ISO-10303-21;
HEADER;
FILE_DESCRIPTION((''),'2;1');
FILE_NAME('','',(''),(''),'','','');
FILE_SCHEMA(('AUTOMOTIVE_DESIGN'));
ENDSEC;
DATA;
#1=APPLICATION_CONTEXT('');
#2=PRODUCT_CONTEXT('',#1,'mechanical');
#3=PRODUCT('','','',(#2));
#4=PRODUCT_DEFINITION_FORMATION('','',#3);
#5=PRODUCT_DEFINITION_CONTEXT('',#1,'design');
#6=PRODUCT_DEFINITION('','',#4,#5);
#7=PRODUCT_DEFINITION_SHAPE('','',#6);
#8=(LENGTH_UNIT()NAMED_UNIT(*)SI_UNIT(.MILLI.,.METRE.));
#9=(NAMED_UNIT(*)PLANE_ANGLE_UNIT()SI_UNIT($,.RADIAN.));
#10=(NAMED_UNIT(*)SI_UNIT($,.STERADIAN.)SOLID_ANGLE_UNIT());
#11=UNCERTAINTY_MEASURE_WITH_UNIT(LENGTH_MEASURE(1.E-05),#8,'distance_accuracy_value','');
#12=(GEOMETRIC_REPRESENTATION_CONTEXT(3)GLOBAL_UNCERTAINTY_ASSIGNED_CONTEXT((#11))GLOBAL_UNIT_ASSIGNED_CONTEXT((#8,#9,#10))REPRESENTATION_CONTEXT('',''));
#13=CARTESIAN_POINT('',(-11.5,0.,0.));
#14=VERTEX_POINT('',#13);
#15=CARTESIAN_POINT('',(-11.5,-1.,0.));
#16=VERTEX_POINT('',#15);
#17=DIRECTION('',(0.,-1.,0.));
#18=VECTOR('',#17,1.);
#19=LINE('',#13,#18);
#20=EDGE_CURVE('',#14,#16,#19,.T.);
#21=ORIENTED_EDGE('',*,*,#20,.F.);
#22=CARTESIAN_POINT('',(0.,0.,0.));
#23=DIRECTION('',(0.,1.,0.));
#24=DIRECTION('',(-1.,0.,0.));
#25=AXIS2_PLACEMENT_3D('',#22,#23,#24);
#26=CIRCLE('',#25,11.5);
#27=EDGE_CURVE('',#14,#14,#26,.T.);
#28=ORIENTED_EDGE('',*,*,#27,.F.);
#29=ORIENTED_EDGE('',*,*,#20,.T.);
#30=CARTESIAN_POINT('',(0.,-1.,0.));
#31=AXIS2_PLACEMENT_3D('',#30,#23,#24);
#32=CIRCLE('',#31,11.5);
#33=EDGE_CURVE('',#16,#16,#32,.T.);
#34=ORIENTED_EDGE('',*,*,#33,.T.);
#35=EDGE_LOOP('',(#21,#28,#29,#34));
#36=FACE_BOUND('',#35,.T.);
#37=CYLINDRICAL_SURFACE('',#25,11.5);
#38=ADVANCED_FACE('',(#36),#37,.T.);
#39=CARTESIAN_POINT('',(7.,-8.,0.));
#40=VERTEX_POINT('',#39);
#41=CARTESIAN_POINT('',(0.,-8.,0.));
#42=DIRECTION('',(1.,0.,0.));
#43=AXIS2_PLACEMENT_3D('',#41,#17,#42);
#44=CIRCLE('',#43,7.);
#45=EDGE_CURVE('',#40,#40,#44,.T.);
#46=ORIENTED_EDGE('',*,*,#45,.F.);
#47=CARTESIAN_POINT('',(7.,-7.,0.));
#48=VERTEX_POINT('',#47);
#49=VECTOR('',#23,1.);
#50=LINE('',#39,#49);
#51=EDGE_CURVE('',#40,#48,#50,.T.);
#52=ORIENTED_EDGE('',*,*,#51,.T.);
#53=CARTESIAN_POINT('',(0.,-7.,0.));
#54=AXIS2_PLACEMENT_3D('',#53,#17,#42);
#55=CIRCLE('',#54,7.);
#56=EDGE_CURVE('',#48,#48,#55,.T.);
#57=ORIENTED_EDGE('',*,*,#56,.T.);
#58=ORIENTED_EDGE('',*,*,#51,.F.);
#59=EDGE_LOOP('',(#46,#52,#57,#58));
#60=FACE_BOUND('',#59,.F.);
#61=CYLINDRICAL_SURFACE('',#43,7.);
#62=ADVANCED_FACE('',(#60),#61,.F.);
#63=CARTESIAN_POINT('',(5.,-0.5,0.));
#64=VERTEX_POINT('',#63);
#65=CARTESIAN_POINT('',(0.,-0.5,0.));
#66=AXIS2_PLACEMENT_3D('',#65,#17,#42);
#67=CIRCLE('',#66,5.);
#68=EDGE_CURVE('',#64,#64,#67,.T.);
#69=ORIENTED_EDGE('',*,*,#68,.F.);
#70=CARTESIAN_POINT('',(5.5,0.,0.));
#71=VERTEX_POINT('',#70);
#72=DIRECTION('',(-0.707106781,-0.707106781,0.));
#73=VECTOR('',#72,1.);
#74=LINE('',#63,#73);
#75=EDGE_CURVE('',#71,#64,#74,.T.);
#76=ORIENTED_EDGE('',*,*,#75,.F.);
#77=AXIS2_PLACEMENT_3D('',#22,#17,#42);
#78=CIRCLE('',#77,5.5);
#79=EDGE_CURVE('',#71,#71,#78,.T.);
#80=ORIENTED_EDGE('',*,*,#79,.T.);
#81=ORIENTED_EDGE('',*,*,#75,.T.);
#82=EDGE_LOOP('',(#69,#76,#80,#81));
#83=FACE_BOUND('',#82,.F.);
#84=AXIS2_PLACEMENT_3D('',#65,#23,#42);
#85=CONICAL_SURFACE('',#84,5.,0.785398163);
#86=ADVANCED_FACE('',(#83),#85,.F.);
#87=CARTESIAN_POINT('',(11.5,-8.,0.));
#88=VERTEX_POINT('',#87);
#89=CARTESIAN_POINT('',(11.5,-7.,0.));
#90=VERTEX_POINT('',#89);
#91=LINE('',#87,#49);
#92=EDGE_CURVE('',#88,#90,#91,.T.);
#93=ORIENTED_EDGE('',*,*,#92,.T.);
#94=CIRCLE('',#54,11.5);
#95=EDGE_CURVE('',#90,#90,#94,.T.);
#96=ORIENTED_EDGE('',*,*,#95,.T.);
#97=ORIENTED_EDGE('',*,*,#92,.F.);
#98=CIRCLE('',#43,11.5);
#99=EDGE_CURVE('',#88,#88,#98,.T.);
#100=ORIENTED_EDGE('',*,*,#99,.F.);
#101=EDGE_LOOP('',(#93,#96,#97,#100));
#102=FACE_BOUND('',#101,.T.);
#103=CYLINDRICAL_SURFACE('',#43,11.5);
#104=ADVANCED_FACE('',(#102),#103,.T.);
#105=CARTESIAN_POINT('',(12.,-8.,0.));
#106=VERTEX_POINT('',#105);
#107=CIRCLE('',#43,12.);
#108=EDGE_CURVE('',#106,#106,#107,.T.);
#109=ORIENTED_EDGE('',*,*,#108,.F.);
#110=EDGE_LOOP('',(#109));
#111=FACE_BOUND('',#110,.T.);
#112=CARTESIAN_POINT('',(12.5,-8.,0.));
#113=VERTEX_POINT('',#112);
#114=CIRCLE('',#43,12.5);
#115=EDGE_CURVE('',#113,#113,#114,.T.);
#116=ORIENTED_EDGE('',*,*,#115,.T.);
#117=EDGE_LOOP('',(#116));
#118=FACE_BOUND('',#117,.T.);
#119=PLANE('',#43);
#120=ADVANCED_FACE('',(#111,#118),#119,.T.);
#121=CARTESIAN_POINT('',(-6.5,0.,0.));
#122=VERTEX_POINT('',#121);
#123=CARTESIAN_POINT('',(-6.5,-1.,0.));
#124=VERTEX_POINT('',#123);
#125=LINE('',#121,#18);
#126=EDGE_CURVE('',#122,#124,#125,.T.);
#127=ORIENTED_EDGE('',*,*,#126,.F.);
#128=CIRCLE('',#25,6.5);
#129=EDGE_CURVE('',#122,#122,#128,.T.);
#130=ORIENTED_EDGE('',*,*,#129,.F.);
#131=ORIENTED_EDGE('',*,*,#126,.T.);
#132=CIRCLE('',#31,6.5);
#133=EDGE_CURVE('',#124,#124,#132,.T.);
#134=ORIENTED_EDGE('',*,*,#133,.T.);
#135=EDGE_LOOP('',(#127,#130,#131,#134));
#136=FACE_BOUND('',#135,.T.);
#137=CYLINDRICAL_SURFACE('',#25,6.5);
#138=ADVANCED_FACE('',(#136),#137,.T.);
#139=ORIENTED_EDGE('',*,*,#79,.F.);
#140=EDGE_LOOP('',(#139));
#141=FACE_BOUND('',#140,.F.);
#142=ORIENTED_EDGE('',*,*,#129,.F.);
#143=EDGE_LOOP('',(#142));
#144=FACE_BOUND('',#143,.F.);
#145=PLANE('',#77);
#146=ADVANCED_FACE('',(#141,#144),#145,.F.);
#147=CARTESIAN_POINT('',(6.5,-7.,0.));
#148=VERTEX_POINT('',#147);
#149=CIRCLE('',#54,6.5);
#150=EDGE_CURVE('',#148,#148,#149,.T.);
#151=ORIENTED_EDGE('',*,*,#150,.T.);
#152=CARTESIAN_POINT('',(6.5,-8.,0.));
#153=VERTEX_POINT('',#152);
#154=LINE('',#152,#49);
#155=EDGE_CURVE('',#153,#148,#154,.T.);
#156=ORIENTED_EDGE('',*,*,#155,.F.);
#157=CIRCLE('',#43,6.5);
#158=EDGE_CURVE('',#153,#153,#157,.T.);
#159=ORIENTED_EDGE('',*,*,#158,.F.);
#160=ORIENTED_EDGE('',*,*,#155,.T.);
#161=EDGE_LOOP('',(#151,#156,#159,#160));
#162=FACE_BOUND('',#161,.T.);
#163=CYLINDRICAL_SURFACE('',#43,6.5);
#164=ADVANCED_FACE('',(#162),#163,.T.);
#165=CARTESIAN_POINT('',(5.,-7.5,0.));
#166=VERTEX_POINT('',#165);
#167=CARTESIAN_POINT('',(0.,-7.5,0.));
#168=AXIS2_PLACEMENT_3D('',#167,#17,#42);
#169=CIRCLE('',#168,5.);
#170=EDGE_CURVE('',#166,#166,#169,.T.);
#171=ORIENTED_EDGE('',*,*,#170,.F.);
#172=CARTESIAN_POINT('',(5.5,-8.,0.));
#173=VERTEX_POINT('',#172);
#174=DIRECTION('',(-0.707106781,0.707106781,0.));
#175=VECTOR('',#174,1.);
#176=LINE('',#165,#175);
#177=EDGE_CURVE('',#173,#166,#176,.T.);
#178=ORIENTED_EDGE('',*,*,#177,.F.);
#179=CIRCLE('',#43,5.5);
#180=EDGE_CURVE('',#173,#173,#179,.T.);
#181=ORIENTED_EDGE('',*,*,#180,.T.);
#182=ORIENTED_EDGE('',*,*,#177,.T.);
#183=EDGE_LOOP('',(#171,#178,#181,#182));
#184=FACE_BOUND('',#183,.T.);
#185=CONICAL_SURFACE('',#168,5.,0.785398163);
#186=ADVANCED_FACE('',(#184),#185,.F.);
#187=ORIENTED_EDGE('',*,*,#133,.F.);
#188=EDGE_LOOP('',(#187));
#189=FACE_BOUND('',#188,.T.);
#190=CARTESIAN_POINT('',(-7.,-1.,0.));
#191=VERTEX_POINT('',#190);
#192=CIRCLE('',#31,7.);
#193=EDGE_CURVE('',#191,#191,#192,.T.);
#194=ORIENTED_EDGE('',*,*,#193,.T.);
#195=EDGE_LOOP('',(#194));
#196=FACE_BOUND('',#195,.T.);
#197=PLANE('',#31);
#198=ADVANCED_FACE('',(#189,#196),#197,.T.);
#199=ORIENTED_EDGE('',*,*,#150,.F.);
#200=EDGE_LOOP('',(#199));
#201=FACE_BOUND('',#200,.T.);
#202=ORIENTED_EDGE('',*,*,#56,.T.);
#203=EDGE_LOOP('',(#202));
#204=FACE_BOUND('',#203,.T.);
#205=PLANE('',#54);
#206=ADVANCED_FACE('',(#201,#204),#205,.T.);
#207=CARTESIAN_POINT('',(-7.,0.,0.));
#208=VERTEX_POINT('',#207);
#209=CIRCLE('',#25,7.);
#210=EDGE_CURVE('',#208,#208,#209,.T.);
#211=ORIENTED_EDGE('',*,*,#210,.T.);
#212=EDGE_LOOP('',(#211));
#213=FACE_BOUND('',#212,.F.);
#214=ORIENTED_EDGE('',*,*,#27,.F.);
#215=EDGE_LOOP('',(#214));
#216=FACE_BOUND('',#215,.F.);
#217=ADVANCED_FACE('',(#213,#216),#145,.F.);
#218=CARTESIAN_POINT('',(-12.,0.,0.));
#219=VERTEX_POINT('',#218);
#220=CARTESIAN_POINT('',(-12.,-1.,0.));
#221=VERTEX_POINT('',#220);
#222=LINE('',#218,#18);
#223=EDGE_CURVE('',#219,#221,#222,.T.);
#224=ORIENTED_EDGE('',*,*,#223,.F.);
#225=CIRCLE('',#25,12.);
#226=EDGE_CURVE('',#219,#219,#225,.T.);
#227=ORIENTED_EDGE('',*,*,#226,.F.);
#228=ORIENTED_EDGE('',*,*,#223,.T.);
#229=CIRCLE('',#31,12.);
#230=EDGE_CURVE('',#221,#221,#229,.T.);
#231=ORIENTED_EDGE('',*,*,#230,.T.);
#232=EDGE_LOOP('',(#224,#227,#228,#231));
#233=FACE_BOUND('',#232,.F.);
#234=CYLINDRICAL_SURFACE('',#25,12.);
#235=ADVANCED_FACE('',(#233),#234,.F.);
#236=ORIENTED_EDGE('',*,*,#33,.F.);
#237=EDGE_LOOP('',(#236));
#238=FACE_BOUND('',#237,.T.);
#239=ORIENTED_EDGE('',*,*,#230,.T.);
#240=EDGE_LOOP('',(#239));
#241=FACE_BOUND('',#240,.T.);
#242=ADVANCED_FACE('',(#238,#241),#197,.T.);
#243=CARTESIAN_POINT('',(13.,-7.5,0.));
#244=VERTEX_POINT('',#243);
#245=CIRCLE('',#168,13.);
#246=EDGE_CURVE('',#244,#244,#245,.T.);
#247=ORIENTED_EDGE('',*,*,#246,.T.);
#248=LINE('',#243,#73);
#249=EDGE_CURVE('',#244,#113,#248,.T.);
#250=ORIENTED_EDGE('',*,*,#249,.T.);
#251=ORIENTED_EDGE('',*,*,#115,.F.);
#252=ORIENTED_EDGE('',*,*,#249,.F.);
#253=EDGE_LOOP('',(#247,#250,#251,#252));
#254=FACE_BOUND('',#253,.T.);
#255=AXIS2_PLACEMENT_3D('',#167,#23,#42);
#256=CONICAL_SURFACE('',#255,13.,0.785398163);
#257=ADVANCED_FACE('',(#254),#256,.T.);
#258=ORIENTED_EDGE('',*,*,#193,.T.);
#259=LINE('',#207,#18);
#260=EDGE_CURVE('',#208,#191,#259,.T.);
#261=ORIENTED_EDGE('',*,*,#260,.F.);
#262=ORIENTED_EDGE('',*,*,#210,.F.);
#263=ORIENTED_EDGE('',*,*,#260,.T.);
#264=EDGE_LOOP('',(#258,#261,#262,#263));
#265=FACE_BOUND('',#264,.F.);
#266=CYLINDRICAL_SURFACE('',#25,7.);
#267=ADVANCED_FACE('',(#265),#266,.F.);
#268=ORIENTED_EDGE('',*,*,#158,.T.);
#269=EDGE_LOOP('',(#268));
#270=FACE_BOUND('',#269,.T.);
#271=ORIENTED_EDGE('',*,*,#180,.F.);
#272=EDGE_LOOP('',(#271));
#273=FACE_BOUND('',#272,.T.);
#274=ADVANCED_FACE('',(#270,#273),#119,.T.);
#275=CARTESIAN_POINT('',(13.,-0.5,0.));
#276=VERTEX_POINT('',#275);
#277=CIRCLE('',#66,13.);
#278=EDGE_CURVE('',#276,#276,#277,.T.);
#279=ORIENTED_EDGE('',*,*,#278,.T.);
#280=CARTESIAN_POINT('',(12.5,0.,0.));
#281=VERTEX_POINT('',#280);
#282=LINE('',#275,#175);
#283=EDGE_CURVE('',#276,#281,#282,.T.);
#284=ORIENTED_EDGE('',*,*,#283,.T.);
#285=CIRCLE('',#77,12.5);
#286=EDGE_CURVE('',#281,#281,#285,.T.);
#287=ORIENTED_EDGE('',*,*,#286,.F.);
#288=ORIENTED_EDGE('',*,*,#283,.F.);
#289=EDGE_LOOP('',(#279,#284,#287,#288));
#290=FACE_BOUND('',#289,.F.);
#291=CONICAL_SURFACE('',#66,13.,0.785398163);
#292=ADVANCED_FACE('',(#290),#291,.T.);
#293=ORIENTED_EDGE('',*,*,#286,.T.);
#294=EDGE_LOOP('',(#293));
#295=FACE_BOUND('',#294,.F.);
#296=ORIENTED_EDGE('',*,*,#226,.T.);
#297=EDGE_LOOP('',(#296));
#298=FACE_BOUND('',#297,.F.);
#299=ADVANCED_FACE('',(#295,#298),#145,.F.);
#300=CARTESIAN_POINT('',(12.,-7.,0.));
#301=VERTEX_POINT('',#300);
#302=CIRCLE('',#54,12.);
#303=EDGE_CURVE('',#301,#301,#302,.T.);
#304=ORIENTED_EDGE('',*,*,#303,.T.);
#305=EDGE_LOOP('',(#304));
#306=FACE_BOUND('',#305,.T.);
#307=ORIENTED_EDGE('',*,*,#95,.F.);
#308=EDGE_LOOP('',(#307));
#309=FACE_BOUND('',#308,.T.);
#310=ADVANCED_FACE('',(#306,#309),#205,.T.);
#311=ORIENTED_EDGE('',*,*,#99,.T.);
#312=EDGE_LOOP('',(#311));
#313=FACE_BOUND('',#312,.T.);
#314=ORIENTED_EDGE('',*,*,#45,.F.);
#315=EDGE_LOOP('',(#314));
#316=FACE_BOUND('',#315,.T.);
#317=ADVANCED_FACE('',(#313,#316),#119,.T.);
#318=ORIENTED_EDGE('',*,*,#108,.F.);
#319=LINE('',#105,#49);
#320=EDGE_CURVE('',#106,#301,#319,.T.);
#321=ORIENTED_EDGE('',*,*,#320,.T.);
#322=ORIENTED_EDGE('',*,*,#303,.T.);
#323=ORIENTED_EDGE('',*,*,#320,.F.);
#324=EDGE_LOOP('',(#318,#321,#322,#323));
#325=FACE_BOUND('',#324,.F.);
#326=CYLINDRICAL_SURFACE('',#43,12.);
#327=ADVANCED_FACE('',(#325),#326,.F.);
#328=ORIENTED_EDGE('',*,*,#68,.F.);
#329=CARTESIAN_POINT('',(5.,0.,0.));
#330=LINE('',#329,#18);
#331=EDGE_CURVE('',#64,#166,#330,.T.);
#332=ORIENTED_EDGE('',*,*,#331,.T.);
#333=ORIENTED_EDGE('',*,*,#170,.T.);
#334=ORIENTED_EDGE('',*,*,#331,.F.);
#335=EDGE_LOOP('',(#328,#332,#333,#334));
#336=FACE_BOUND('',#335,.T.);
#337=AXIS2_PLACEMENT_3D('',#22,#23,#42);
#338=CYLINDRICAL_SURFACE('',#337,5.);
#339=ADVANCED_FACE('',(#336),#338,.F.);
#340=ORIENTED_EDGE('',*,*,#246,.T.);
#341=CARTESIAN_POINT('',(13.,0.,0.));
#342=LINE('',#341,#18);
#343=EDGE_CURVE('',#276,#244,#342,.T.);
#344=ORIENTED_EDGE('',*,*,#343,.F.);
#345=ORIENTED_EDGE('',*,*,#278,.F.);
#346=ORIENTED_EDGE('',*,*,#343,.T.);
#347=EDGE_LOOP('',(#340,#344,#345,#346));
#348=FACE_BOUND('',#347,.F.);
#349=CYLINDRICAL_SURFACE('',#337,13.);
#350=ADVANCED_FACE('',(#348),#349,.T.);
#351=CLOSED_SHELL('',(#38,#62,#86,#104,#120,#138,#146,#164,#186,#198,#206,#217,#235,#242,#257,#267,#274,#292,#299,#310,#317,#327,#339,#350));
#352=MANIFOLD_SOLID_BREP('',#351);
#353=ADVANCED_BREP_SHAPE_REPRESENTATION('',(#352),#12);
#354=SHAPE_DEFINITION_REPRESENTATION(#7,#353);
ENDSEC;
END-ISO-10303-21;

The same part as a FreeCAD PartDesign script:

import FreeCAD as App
import Part
import Sketcher

V = App.Vector


def edges_at(feature, points):
    """Names of the edges that pass closest to the given points."""
    edges = feature.Shape.Edges
    near = lambda p: min(range(len(edges)), key=lambda i: edges[i].distToShape(Part.Vertex(*p))[0])
    return sorted({f"Edge{near(p) + 1}" for p in points})

doc = App.newDocument("Part")
body = doc.addObject("PartDesign::Body", "Body")

# Sketch on XZ plane
sketch1 = body.newObject("Sketcher::SketchObject", "Sketch")
sketch1.AttachmentSupport = (doc.getObject("XZ_Plane"), [""])
sketch1.MapMode = "FlatFace"
sketch1.addGeometry([
    Part.Circle(V(0, 0, 0), V(0, 0, 1), 13),
    Part.Circle(V(0, 0, 0), V(0, 0, 1), 5),
], False)
sketch1.addConstraint([
    Sketcher.Constraint("Coincident", 0, 3, -1, 1),
    Sketcher.Constraint("Coincident", 1, 3, -1, 1),
    Sketcher.Constraint("Diameter", 0, 26.0),
    Sketcher.Constraint("Diameter", 1, 10.0),
])
pad1 = body.newObject("PartDesign::Pad", "Pad")
pad1.Profile = sketch1
pad1.Length = 8

# Sketch on XZ plane
sketch2 = body.newObject("Sketcher::SketchObject", "Sketch001")
sketch2.AttachmentSupport = (doc.getObject("XZ_Plane"), [""])
sketch2.MapMode = "FlatFace"
sketch2.AttachmentOffset = App.Placement(V(0, 0, 8), App.Rotation())
sketch2.addGeometry([
    Part.Circle(V(0, 0, 0), V(0, 0, 1), 12),
    Part.Circle(V(0, 0, 0), V(0, 0, 1), 11.5),
    Part.Circle(V(0, 0, 0), V(0, 0, 1), 7),
    Part.Circle(V(0, 0, 0), V(0, 0, 1), 6.5),
], False)
sketch2.addConstraint([
    Sketcher.Constraint("Coincident", 0, 3, -1, 1),
    Sketcher.Constraint("Coincident", 1, 3, -1, 1),
    Sketcher.Constraint("Coincident", 2, 3, -1, 1),
    Sketcher.Constraint("Coincident", 3, 3, -1, 1),
    Sketcher.Constraint("Diameter", 0, 24.0),
    Sketcher.Constraint("Diameter", 1, 23.0),
    Sketcher.Constraint("Diameter", 2, 14.0),
    Sketcher.Constraint("Diameter", 3, 13.0),
])
pocket1 = body.newObject("PartDesign::Pocket", "Pocket")
pocket1.Profile = sketch2
pocket1.Length = 1

# Sketch on XZ plane
sketch3 = body.newObject("Sketcher::SketchObject", "Sketch002")
sketch3.AttachmentSupport = (doc.getObject("XZ_Plane"), [""])
sketch3.MapMode = "FlatFace"
sketch3.addGeometry([
    Part.Circle(V(0, 0, 0), V(0, 0, 1), 12),
    Part.Circle(V(0, 0, 0), V(0, 0, 1), 11.5),
    Part.Circle(V(0, 0, 0), V(0, 0, 1), 7),
    Part.Circle(V(0, 0, 0), V(0, 0, 1), 6.5),
], False)
sketch3.addConstraint([
    Sketcher.Constraint("Coincident", 0, 3, -1, 1),
    Sketcher.Constraint("Coincident", 1, 3, -1, 1),
    Sketcher.Constraint("Coincident", 2, 3, -1, 1),
    Sketcher.Constraint("Coincident", 3, 3, -1, 1),
    Sketcher.Constraint("Diameter", 0, 24.0),
    Sketcher.Constraint("Diameter", 1, 23.0),
    Sketcher.Constraint("Diameter", 2, 14.0),
    Sketcher.Constraint("Diameter", 3, 13.0),
])
pocket2 = body.newObject("PartDesign::Pocket", "Pocket001")
pocket2.Profile = sketch3
pocket2.Length = 1
pocket2.Reversed = True
doc.recompute()

chamfer = body.newObject("PartDesign::Chamfer", "Chamfer")
chamfer.Base = (pocket2, edges_at(pocket2, [
    (-13, 0, 0),
    (-5, 0, 0),
    (-5, -8, 0),
    (-13, -8, 0),
]))
chamfer.Size = 0.5

doc.recompute()
